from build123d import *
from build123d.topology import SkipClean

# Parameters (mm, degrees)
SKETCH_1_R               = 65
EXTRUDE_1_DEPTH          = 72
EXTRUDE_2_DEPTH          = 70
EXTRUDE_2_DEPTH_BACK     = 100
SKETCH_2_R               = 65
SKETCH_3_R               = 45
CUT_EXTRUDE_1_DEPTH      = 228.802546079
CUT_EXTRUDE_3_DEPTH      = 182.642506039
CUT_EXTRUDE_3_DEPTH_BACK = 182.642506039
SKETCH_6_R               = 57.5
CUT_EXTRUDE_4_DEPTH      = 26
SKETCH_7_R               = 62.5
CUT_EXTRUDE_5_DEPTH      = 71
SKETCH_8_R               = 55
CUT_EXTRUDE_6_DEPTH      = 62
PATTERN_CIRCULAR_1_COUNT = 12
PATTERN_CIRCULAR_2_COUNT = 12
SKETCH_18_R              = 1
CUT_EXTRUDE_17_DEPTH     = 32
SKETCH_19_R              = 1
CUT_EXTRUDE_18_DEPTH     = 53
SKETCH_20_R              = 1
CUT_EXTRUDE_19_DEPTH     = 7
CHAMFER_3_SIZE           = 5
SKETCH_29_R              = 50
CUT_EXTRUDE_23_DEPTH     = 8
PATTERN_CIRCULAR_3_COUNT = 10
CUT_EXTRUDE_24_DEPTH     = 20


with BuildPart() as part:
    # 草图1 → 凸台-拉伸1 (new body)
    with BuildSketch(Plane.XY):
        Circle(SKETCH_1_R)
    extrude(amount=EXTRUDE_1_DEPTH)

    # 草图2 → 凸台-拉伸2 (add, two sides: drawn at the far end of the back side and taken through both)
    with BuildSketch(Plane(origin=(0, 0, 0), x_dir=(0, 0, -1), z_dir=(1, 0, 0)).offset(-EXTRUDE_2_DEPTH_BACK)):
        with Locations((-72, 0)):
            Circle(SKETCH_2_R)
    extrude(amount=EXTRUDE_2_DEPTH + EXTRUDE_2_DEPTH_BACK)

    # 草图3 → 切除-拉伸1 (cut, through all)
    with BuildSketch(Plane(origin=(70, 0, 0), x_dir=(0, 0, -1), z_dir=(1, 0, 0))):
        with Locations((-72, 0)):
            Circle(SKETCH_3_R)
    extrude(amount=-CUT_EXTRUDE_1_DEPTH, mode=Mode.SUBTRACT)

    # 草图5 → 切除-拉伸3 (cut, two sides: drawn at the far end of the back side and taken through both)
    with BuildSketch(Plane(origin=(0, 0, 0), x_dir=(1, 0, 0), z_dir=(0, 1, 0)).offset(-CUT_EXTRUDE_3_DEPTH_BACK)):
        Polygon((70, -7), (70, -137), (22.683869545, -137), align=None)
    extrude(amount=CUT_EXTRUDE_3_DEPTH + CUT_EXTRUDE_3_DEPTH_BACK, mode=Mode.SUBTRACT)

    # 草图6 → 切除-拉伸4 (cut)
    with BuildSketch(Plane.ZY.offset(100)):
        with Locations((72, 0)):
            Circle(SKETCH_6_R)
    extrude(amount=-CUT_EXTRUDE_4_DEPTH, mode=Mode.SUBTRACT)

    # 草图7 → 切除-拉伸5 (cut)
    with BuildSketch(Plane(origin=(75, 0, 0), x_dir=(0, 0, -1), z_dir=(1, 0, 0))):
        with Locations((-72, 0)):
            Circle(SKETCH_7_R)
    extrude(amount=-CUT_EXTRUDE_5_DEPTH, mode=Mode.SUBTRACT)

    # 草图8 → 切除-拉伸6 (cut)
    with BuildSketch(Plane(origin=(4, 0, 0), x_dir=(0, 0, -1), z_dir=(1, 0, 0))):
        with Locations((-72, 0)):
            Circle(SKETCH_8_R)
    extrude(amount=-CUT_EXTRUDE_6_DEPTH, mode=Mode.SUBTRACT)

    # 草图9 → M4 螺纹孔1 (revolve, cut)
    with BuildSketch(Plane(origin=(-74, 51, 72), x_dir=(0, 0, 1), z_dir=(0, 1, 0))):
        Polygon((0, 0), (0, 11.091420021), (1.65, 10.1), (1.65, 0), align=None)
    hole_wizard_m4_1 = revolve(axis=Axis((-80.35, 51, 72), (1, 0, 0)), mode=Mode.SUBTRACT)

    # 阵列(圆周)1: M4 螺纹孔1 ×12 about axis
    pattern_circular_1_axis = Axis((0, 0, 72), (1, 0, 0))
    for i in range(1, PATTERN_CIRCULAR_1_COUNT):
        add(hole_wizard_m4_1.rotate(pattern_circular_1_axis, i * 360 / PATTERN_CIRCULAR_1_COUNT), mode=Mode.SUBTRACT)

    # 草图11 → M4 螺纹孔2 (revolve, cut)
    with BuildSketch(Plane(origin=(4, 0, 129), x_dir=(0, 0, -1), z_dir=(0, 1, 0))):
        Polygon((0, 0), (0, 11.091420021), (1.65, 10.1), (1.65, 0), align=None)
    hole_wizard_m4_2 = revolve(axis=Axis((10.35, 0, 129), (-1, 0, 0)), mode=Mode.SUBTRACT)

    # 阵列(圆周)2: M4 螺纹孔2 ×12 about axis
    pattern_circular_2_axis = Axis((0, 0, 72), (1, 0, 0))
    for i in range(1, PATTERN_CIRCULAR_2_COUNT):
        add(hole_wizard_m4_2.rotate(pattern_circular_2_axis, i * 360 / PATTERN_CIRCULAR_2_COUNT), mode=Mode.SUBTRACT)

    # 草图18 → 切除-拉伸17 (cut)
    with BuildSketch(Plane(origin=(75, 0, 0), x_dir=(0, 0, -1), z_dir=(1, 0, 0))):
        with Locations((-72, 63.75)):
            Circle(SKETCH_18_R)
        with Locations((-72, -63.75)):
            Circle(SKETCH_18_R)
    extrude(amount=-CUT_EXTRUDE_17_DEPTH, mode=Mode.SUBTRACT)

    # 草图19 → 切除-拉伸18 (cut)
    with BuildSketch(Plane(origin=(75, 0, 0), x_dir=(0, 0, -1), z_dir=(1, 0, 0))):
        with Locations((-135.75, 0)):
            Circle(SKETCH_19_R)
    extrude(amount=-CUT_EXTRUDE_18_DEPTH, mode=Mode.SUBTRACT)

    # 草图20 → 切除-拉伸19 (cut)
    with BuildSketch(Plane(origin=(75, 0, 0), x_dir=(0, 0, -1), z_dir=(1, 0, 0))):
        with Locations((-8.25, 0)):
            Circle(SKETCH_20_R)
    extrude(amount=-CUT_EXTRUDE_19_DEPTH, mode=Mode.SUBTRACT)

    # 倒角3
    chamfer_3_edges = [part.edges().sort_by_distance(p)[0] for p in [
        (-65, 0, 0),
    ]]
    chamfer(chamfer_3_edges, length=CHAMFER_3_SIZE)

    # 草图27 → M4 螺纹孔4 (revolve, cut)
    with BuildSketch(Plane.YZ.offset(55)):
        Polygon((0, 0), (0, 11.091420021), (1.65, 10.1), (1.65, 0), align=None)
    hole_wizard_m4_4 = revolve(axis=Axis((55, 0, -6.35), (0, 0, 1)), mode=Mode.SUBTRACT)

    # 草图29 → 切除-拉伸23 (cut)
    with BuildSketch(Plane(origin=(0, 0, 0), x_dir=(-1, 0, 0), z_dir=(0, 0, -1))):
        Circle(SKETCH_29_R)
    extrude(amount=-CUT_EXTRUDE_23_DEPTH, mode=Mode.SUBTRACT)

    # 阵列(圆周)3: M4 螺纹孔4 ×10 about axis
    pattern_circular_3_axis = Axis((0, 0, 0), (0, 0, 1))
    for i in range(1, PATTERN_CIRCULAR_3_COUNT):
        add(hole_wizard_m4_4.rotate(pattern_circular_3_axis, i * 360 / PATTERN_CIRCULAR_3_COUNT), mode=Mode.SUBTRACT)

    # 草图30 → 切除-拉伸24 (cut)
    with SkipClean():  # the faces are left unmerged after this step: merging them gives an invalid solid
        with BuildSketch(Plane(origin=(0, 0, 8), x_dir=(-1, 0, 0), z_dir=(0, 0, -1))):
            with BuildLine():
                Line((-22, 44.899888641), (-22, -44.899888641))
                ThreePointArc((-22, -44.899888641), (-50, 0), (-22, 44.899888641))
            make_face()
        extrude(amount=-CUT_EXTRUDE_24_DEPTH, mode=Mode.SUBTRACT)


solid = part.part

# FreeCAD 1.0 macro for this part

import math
import FreeCAD as App
import Part
import Sketcher
from FreeCAD import Vector
Q = App.Units.Quantity


def edges_at(feature, points):
    """Names of the edges that pass closest to the given points."""
    edges = feature.Shape.Edges
    near = lambda p: min(range(len(edges)), key=lambda i: edges[i].distToShape(Part.Vertex(*p))[0])
    return sorted({f"Edge{near(p) + 1}" for p in points})


def add_polygon(sketch, points):
    """Adds a closed chain of lines whose ends are joined by coincident constraints."""
    first, n = sketch.GeometryCount, len(points)
    for a, b in zip(points, points[1:] + points[:1]):
        sketch.addGeometry(Part.LineSegment(App.Vector(*a, 0), App.Vector(*b, 0)), False)
    for i in range(n):
        sketch.addConstraint(Sketcher.Constraint("Coincident", first + i, 2, first + (i + 1) % n, 1))

doc = App.newDocument("Part")
body = doc.addObject("PartDesign::Body", "Body")

# Sketch on XY plane
sketch1 = body.newObject("Sketcher::SketchObject", "Sketch")
sketch1.AttachmentSupport = (doc.getObject("XY_Plane"), [""])
sketch1.MapMode = "FlatFace"
sketch1.addGeometry(Part.Circle(Vector(0, 0, 0), Vector(0, 0, 1), 65), False)
sketch1.addConstraint([
    Sketcher.Constraint("Coincident", 0, 3, -1, 1),
    Sketcher.Constraint("Diameter", 0, Q("130 mm")),
])
pad1 = body.newObject("PartDesign::Pad", "Pad")
pad1.Profile = sketch1
pad1.Length = 72

# Sketch on YZ plane
sketch2 = body.newObject("Sketcher::SketchObject", "Sketch001")
sketch2.AttachmentSupport = (doc.getObject("YZ_Plane"), [""])
sketch2.MapMode = "FlatFace"
sketch2.addGeometry(Part.Circle(Vector(0, 72, 0), Vector(0, 0, 1), 65), False)
sketch2.addConstraint([
    Sketcher.Constraint("PointOnObject", 0, 3, -2),
    Sketcher.Constraint("Diameter", 0, Q("130 mm")),
    Sketcher.Constraint("DistanceY", -1, 1, 0, 3, Q("72 mm")),
])
pad2 = body.newObject("PartDesign::Pad", "Pad001")
pad2.Profile = sketch2
pad2.Type = "TwoLengths"
pad2.Length = 70
pad2.Length2 = 100

# Sketch on YZ plane
sketch3 = body.newObject("Sketcher::SketchObject", "Sketch002")
sketch3.AttachmentSupport = (doc.getObject("YZ_Plane"), [""])
sketch3.MapMode = "FlatFace"
sketch3.AttachmentOffset = App.Placement(Vector(0, 0, 70), App.Rotation())
sketch3.addGeometry(Part.Circle(Vector(0, 72, 0), Vector(0, 0, 1), 45), False)
sketch3.addConstraint([
    Sketcher.Constraint("PointOnObject", 0, 3, -2),
    Sketcher.Constraint("Diameter", 0, Q("90 mm")),
    Sketcher.Constraint("DistanceY", -1, 1, 0, 3, Q("72 mm")),
])
pocket1 = body.newObject("PartDesign::Pocket", "Pocket")
pocket1.Profile = sketch3
pocket1.Type = "ThroughAll"

# Sketch on XZ plane
sketch4 = body.newObject("Sketcher::SketchObject", "Sketch003")
sketch4.AttachmentSupport = (doc.getObject("XZ_Plane"), [""])
sketch4.MapMode = "FlatFace"
add_polygon(sketch4, [(70, 137), (70, 7), (23, 137)])  # lines 0-2
sketch4.addConstraint([
    Sketcher.Constraint("Vertical", 0),
    Sketcher.Constraint("Horizontal", 2),
    Sketcher.Constraint("DistanceY", 0, 2, 0, 1, Q("130 mm")),
    Sketcher.Constraint("Angle", 1, Q("110 deg")),
    Sketcher.Constraint("DistanceX", -1, 1, 0, 2, Q("70 mm")),
    Sketcher.Constraint("DistanceY", -1, 1, 0, 2, Q("7 mm")),
])
pocket2 = body.newObject("PartDesign::Pocket", "Pocket001")
pocket2.Profile = sketch4
pocket2.Type = "ThroughAll"
pocket2.Midplane = True

# Sketch on YZ plane
sketch5 = body.newObject("Sketcher::SketchObject", "Sketch004")
sketch5.AttachmentSupport = (doc.getObject("YZ_Plane"), [""])
sketch5.MapMode = "FlatFace"
sketch5.AttachmentOffset = App.Placement(Vector(0, 0, -100), App.Rotation())
sketch5.addGeometry(Part.Circle(Vector(0, 72, 0), Vector(0, 0, 1), 58), False)
sketch5.addConstraint([
    Sketcher.Constraint("PointOnObject", 0, 3, -2),
    Sketcher.Constraint("Diameter", 0, Q("115 mm")),
    Sketcher.Constraint("DistanceY", -1, 1, 0, 3, Q("72 mm")),
])
pocket3 = body.newObject("PartDesign::Pocket", "Pocket002")
pocket3.Profile = sketch5
pocket3.Length = 26
pocket3.Reversed = True

# Sketch on YZ plane
sketch6 = body.newObject("Sketcher::SketchObject", "Sketch005")
sketch6.AttachmentSupport = (doc.getObject("YZ_Plane"), [""])
sketch6.MapMode = "FlatFace"
sketch6.AttachmentOffset = App.Placement(Vector(0, 0, 75), App.Rotation())
sketch6.addGeometry(Part.Circle(Vector(0, 72, 0), Vector(0, 0, 1), 62), False)
sketch6.addConstraint([
    Sketcher.Constraint("PointOnObject", 0, 3, -2),
    Sketcher.Constraint("Diameter", 0, Q("125 mm")),
    Sketcher.Constraint("DistanceY", -1, 1, 0, 3, Q("72 mm")),
])
pocket4 = body.newObject("PartDesign::Pocket", "Pocket003")
pocket4.Profile = sketch6
pocket4.Length = 71

# Sketch on YZ plane
sketch7 = body.newObject("Sketcher::SketchObject", "Sketch006")
sketch7.AttachmentSupport = (doc.getObject("YZ_Plane"), [""])
sketch7.MapMode = "FlatFace"
sketch7.AttachmentOffset = App.Placement(Vector(0, 0, 4), App.Rotation())
sketch7.addGeometry(Part.Circle(Vector(0, 72, 0), Vector(0, 0, 1), 55), False)
sketch7.addConstraint([
    Sketcher.Constraint("PointOnObject", 0, 3, -2),
    Sketcher.Constraint("Diameter", 0, Q("110 mm")),
    Sketcher.Constraint("DistanceY", -1, 1, 0, 3, Q("72 mm")),
])
pocket5 = body.newObject("PartDesign::Pocket", "Pocket004")
pocket5.Profile = sketch7
pocket5.Length = 62

# Sketch on XZ plane
sketch8 = body.newObject("Sketcher::SketchObject", "Sketch007")
sketch8.AttachmentSupport = (doc.getObject("XZ_Plane"), [""])
sketch8.MapMode = "FlatFace"
sketch8.AttachmentOffset = App.Placement(Vector(0, 0, -51), App.Rotation())
add_polygon(sketch8, [(-62.9, 72), (-74, 72), (-74, 73.7), (-63.9, 73.7)])  # lines 0-3
sketch8.addGeometry(Part.LineSegment(Vector(-74, 72, 0), Vector(-62.9, 72, 0)), True)  # axis
sketch8.addConstraint([
    Sketcher.Constraint("Horizontal", 0),
    Sketcher.Constraint("Vertical", 1),
    Sketcher.Constraint("Horizontal", 2),
    Sketcher.Constraint("Horizontal", 4),
    Sketcher.Constraint("Coincident", 4, 1, 0, 2),
    Sketcher.Constraint("Equal", 0, 4),
    Sketcher.Constraint("Angle", 3, Q("-59 deg")),
    Sketcher.Constraint("DistanceX", 2, 1, 2, 2, Q("10.1 mm")),
    Sketcher.Constraint("DistanceX", 0, 2, -1, 1, Q("74 mm")),
    Sketcher.Constraint("DistanceY", -1, 1, 0, 2, Q("72 mm")),
    Sketcher.Constraint("DistanceY", 1, 1, 1, 2, Q("1.65 mm")),
])
groove = body.newObject("PartDesign::Groove", "Groove")
groove.Profile = sketch8
groove.ReferenceAxis = (sketch8, ["Axis0"])
groove.Angle = 360
doc.recompute()

datumline = body.newObject("PartDesign::Line", "DatumLine")
datumline.Placement = App.Placement(Vector(0, 0, 72), App.Rotation(Vector(0, 0, 1), Vector(1, 0, 0)))
polarpattern = body.newObject("PartDesign::PolarPattern", "PolarPattern")
polarpattern.Originals = [groove]
polarpattern.Axis = (datumline, [""])
polarpattern.Angle = 360
polarpattern.Occurrences = 12
body.Tip = polarpattern

# Sketch on XZ plane
sketch9 = body.newObject("Sketcher::SketchObject", "Sketch008")
sketch9.AttachmentSupport = (doc.getObject("XZ_Plane"), [""])
sketch9.MapMode = "FlatFace"
add_polygon(sketch9, [(-7.1, 129), (4, 129), (4, 127.3), (-6.1, 127.3)])  # lines 0-3
sketch9.addGeometry(Part.LineSegment(Vector(4, 129, 0), Vector(-7.1, 129, 0)), True)  # axis
sketch9.addConstraint([
    Sketcher.Constraint("Horizontal", 0),
    Sketcher.Constraint("Vertical", 1),
    Sketcher.Constraint("Horizontal", 2),
    Sketcher.Constraint("Horizontal", 4),
    Sketcher.Constraint("Coincident", 4, 1, 0, 2),
    Sketcher.Constraint("Equal", 0, 4),
    Sketcher.Constraint("Angle", 3, Q("121 deg")),
    Sketcher.Constraint("DistanceX", 2, 2, 2, 1, Q("10.1 mm")),
    Sketcher.Constraint("DistanceX", -1, 1, 0, 2, Q("4 mm")),
    Sketcher.Constraint("DistanceY", -1, 1, 0, 2, Q("129 mm")),
    Sketcher.Constraint("DistanceY", 1, 2, 1, 1, Q("1.65 mm")),
])
groove2 = body.newObject("PartDesign::Groove", "Groove001")
groove2.Profile = sketch9
groove2.ReferenceAxis = (sketch9, ["Axis0"])
groove2.Angle = 360
doc.recompute()

datumline2 = body.newObject("PartDesign::Line", "DatumLine001")
datumline2.Placement = App.Placement(Vector(0, 0, 72), App.Rotation(Vector(0, 0, 1), Vector(1, 0, 0)))
polarpattern2 = body.newObject("PartDesign::PolarPattern", "PolarPattern001")
polarpattern2.Originals = [groove2]
polarpattern2.Axis = (datumline2, [""])
polarpattern2.Angle = 360
polarpattern2.Occurrences = 12
body.Tip = polarpattern2

# Sketch on YZ plane
sketch10 = body.newObject("Sketcher::SketchObject", "Sketch009")
sketch10.AttachmentSupport = (doc.getObject("YZ_Plane"), [""])
sketch10.MapMode = "FlatFace"
sketch10.AttachmentOffset = App.Placement(Vector(0, 0, 75), App.Rotation())
sketch10.addGeometry([
    Part.Circle(Vector(63.8, 72, 0), Vector(0, 0, 1), 1),
    Part.Circle(Vector(-63.8, 72, 0), Vector(0, 0, 1), 1),
], False)
sketch10.addConstraint([
    Sketcher.Constraint("Equal", 0, 1),
    Sketcher.Constraint("Symmetric", 0, 3, 1, 3, -2),
    Sketcher.Constraint("Diameter", 0, Q("2 mm")),
    Sketcher.Constraint("DistanceY", -1, 1, 0, 3, Q("72 mm")),
    Sketcher.Constraint("DistanceX", 1, 3, 0, 3, Q("127.5 mm")),
])
pocket6 = body.newObject("PartDesign::Pocket", "Pocket005")
pocket6.Profile = sketch10
pocket6.Length = 32

# Sketch on YZ plane
sketch11 = body.newObject("Sketcher::SketchObject", "Sketch010")
sketch11.AttachmentSupport = (doc.getObject("YZ_Plane"), [""])
sketch11.MapMode = "FlatFace"
sketch11.AttachmentOffset = App.Placement(Vector(0, 0, 75), App.Rotation())
sketch11.addGeometry(Part.Circle(Vector(0, 135.8, 0), Vector(0, 0, 1), 1), False)
sketch11.addConstraint([
    Sketcher.Constraint("PointOnObject", 0, 3, -2),
    Sketcher.Constraint("Diameter", 0, Q("2 mm")),
    Sketcher.Constraint("DistanceY", -1, 1, 0, 3, Q("135.75 mm")),
])
pocket7 = body.newObject("PartDesign::Pocket", "Pocket006")
pocket7.Profile = sketch11
pocket7.Length = 53

# Sketch on YZ plane
sketch12 = body.newObject("Sketcher::SketchObject", "Sketch011")
sketch12.AttachmentSupport = (doc.getObject("YZ_Plane"), [""])
sketch12.MapMode = "FlatFace"
sketch12.AttachmentOffset = App.Placement(Vector(0, 0, 75), App.Rotation())
sketch12.addGeometry(Part.Circle(Vector(0, 8.2, 0), Vector(0, 0, 1), 1), False)
sketch12.addConstraint([
    Sketcher.Constraint("PointOnObject", 0, 3, -2),
    Sketcher.Constraint("Diameter", 0, Q("2 mm")),
    Sketcher.Constraint("DistanceY", -1, 1, 0, 3, Q("8.25 mm")),
])
pocket8 = body.newObject("PartDesign::Pocket", "Pocket007")
pocket8.Profile = sketch12
pocket8.Length = 7
doc.recompute()

chamfer = body.newObject("PartDesign::Chamfer", "Chamfer")
chamfer.Base = (pocket8, edges_at(pocket8, [(-65, 0, 0)]))
chamfer.Size = 5

# Sketch on YZ plane
sketch13 = body.newObject("Sketcher::SketchObject", "Sketch012")
sketch13.AttachmentSupport = (doc.getObject("YZ_Plane"), [""])
sketch13.MapMode = "FlatFace"
sketch13.AttachmentOffset = App.Placement(Vector(0, 0, 55), App.Rotation())
add_polygon(sketch13, [(0, 11.1), (0, 0), (1.6, 0), (1.6, 10.1)])  # lines 0-3
sketch13.addConstraint([
    Sketcher.Constraint("Vertical", 0),
    Sketcher.Constraint("Horizontal", 1),
    Sketcher.Constraint("Vertical", 2),
    Sketcher.Constraint("Coincident", 0, 2, -1, 1),
    Sketcher.Constraint("Angle", 3, Q("149 deg")),
    Sketcher.Constraint("DistanceY", 2, 1, 2, 2, Q("10.1 mm")),
    Sketcher.Constraint("DistanceX", 1, 1, 1, 2, Q("1.65 mm")),
])
groove3 = body.newObject("PartDesign::Groove", "Groove002")
groove3.Profile = sketch13
groove3.ReferenceAxis = (sketch13, ["V_Axis"])
groove3.Angle = 360

# Sketch on XY plane
sketch14 = body.newObject("Sketcher::SketchObject", "Sketch013")
sketch14.AttachmentSupport = (doc.getObject("XY_Plane"), [""])
sketch14.MapMode = "FlatFace"
sketch14.addGeometry(Part.Circle(Vector(0, 0, 0), Vector(0, 0, 1), 50), False)
sketch14.addConstraint([
    Sketcher.Constraint("Coincident", 0, 3, -1, 1),
    Sketcher.Constraint("Diameter", 0, Q("100 mm")),
])
pocket9 = body.newObject("PartDesign::Pocket", "Pocket008")
pocket9.Profile = sketch14
pocket9.Length = 8
pocket9.Reversed = True
doc.recompute()

polarpattern3 = body.newObject("PartDesign::PolarPattern", "PolarPattern002")
polarpattern3.Originals = [groove3]
polarpattern3.Axis = (doc.getObject("Z_Axis"), [""])
polarpattern3.Angle = 360
polarpattern3.Occurrences = 10
body.Tip = polarpattern3

# Sketch on XY plane
sketch15 = body.newObject("Sketcher::SketchObject", "Sketch014")
sketch15.AttachmentSupport = (doc.getObject("XY_Plane"), [""])
sketch15.MapMode = "FlatFace"
sketch15.AttachmentOffset = App.Placement(Vector(0, 0, 8), App.Rotation())
sketch15.addGeometry([
    Part.LineSegment(Vector(22, -45, 0), Vector(22, 45, 0)),
    Part.ArcOfCircle(Part.Circle(Vector(0, 0, 0), Vector(0, 0, 1), 50), math.radians(-64), math.radians(64)),
], False)
sketch15.addConstraint([
    Sketcher.Constraint("Coincident", 0, 1, 1, 1),
    Sketcher.Constraint("Coincident", 1, 2, 0, 2),
    Sketcher.Constraint("Vertical", 0),
    Sketcher.Constraint("Coincident", 1, 3, -1, 1),
    Sketcher.Constraint("Radius", 1, Q("50 mm")),
    Sketcher.Constraint("DistanceX", -1, 1, 0, 1, Q("22 mm")),
])
pocket10 = body.newObject("PartDesign::Pocket", "Pocket009")
pocket10.Profile = sketch15
pocket10.Length = 20
pocket10.Reversed = True

doc.recompute()
